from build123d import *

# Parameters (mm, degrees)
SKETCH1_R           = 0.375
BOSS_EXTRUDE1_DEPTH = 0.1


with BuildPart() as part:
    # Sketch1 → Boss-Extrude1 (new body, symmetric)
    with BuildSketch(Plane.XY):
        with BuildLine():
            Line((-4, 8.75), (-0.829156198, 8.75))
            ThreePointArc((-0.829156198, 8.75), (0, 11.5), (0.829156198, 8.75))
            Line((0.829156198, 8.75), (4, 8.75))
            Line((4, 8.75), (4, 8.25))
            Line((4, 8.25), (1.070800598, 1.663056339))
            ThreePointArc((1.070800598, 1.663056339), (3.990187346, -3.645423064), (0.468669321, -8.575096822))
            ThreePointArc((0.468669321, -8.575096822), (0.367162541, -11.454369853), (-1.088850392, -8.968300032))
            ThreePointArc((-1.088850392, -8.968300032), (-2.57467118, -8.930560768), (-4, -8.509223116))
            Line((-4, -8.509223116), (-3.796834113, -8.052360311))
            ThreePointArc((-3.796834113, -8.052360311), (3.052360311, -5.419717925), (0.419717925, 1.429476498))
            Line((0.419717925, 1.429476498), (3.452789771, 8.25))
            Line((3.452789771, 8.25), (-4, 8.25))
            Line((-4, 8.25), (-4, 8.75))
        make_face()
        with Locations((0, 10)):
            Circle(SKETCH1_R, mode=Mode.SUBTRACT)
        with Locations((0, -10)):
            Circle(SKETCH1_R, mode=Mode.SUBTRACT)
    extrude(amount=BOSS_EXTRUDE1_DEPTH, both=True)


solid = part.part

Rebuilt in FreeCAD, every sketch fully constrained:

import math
import FreeCAD as App
import Part
import Sketcher
Q = App.Units.Quantity

doc = App.newDocument("Part")
body = doc.addObject("PartDesign::Body", "Body")

sketch1 = body.newObject("Sketcher::SketchObject", "Sketch")
sketch1.AttachmentSupport = (doc.getObject("XY_Plane"), [""])
sketch1.MapMode = "FlatFace"
sketch1.addGeometry([
    Part.LineSegment(App.Vector(-0.83, 8.75, 0), App.Vector(-4, 8.75, 0)),
    Part.LineSegment(App.Vector(-4, 8.75, 0), App.Vector(-4, 8.25, 0)),
    Part.LineSegment(App.Vector(-4, 8.25, 0), App.Vector(3.45, 8.25, 0)),
    Part.LineSegment(App.Vector(3.45, 8.25, 0), App.Vector(0.42, 1.43, 0)),
    Part.ArcOfCircle(Part.Circle(App.Vector(-1.69, -3.31, 0), App.Vector(0, 0, 1), 5.19), math.radians(-114), math.radians(66)),
    Part.LineSegment(App.Vector(-3.8, -8.05, 0), App.Vector(-4, -8.51, 0)),
    Part.ArcOfCircle(Part.Circle(App.Vector(-1.69, -3.31, 0), App.Vector(0, 0, 1), 5.69), math.radians(-114), math.radians(-84)),
    Part.ArcOfCircle(Part.Circle(App.Vector(0, -10, 0), App.Vector(0, 0, 1), 1.5), math.radians(137), math.radians(432)),
    Part.ArcOfCircle(Part.Circle(App.Vector(-1.69, -3.31, 0), App.Vector(0, 0, 1), 5.69), math.radians(-68), math.radians(61)),
    Part.LineSegment(App.Vector(1.07, 1.66, 0), App.Vector(4, 8.25, 0)),
    Part.LineSegment(App.Vector(4, 8.25, 0), App.Vector(4, 8.75, 0)),
    Part.LineSegment(App.Vector(4, 8.75, 0), App.Vector(0.83, 8.75, 0)),
    Part.ArcOfCircle(Part.Circle(App.Vector(0, 10, 0), App.Vector(0, 0, 1), 1.5), math.radians(-56), math.radians(236)),
    Part.Circle(App.Vector(0, -10, 0), App.Vector(0, 0, 1), 0.38),
    Part.Circle(App.Vector(0, 10, 0), App.Vector(0, 0, 1), 0.38),
], False)
sketch1.addConstraint([
    Sketcher.Constraint("Coincident", 0, 2, 1, 1),
    Sketcher.Constraint("Coincident", 1, 2, 2, 1),
    Sketcher.Constraint("Coincident", 2, 2, 3, 1),
    Sketcher.Constraint("Coincident", 3, 2, 4, 2),
    Sketcher.Constraint("Coincident", 4, 1, 5, 1),
    Sketcher.Constraint("Coincident", 5, 2, 6, 1),
    Sketcher.Constraint("Coincident", 6, 2, 7, 1),
    Sketcher.Constraint("Coincident", 7, 2, 8, 1),
    Sketcher.Constraint("Coincident", 8, 2, 9, 1),
    Sketcher.Constraint("Coincident", 9, 2, 10, 1),
    Sketcher.Constraint("Coincident", 10, 2, 11, 1),
    Sketcher.Constraint("Coincident", 11, 2, 12, 1),
    Sketcher.Constraint("Coincident", 12, 2, 0, 1),
    Sketcher.Constraint("Horizontal", 0),
    Sketcher.Constraint("Vertical", 1),
    Sketcher.Constraint("Horizontal", 2),
    Sketcher.Constraint("Vertical", 10),
    Sketcher.Constraint("Horizontal", 11),
    Sketcher.Constraint("Coincident", 6, 3, 4, 3),
    Sketcher.Constraint("Coincident", 8, 3, 4, 3),
    Sketcher.Constraint("Coincident", 13, 3, 7, 3),
    Sketcher.Constraint("Coincident", 14, 3, 12, 3),
    Sketcher.Constraint("Equal", 6, 8),
    Sketcher.Constraint("Equal", 7, 12),
    Sketcher.Constraint("Equal", 13, 14),
    Sketcher.Constraint("Symmetric", 7, 3, 12, 3, -1, 1),
    Sketcher.Constraint("Symmetric", 1, 2, 9, 2, -2),
    Sketcher.Constraint("Symmetric", 11, 2, 12, 2, -2),
    Sketcher.Constraint("Parallel", 3, 5),
    Sketcher.Constraint("Parallel", 5, 9),
    Sketcher.Constraint("Vertical", 1, 2, 5, 2),
    Sketcher.Constraint("Radius", 7, Q("1.5 mm")),
    Sketcher.Constraint("Diameter", 13, Q("0.75 mm")),
    Sketcher.Constraint("DistanceY", 1, 2, 1, 1, Q("0.5 mm")),
    Sketcher.Constraint("DistanceY", 7, 3, -1, 1, Q("10 mm")),
    Sketcher.Constraint("DistanceX", 0, 2, -1, 1, Q("4 mm")),
    Sketcher.Constraint("Distance", 5, Q("0.5 mm")),
    Sketcher.Constraint("DistanceY", -1, 1, 0, 2, Q("8.75 mm")),
    Sketcher.Constraint("Radius", 4, Q("5.188558 mm")),
    Sketcher.Constraint("DistanceX", 2, 1, 2, 2, Q("7.45279 mm")),
    Sketcher.Constraint("DistanceY", 6, 2, -1, 1, Q("8.9683 mm")),
    Sketcher.Constraint("DistanceX", -1, 1, 8, 2, Q("1.070801 mm")),
    Sketcher.Constraint("DistanceY", 6, 3, 8, 2, Q("4.974498 mm")),
])
pad1 = body.newObject("PartDesign::Pad", "Pad")
pad1.Profile = sketch1
pad1.Length = 0.2
pad1.Midplane = True

doc.recompute()
